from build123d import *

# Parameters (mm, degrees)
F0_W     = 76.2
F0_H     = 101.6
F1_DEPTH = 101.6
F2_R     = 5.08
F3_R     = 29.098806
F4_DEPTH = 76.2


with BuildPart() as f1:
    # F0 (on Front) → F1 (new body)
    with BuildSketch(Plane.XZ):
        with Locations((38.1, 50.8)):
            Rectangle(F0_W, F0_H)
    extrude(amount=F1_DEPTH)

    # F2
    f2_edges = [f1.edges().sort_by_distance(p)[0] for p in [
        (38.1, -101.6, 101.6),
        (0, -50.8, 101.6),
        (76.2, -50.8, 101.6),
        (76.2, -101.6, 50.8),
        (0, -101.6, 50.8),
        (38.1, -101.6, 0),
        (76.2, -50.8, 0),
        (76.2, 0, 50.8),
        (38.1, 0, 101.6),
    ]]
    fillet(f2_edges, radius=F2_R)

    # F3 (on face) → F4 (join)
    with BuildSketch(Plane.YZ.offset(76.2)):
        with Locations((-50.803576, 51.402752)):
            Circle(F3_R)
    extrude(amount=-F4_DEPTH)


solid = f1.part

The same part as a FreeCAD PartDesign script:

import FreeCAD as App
import Part
import Sketcher
from FreeCAD import Vector
Q = App.Units.Quantity


def edges_at(feature, points):
    """Names of the edges that pass closest to the given points."""
    edges = feature.Shape.Edges
    near = lambda p: min(range(len(edges)), key=lambda i: edges[i].distToShape(Part.Vertex(*p))[0])
    return sorted({f"Edge{near(p) + 1}" for p in points})


def add_polygon(sketch, points):
    """Adds a closed chain of lines whose ends are joined by coincident constraints."""
    first, n = sketch.GeometryCount, len(points)
    for a, b in zip(points, points[1:] + points[:1]):
        sketch.addGeometry(Part.LineSegment(App.Vector(*a, 0), App.Vector(*b, 0)), False)
    for i in range(n):
        sketch.addConstraint(Sketcher.Constraint("Coincident", first + i, 2, first + (i + 1) % n, 1))

doc = App.newDocument("Part")
body = doc.addObject("PartDesign::Body", "Body")

# Sketch on XZ plane
sketch1 = body.newObject("Sketcher::SketchObject", "Sketch")
sketch1.AttachmentSupport = (doc.getObject("XZ_Plane"), [""])
sketch1.MapMode = "FlatFace"
add_polygon(sketch1, [(0, 101.6), (0, 0), (76.2, 0), (76.2, 101.6)])  # lines 0-3
sketch1.addConstraint([
    Sketcher.Constraint("Vertical", 0),
    Sketcher.Constraint("Horizontal", 1),
    Sketcher.Constraint("Vertical", 2),
    Sketcher.Constraint("Horizontal", 3),
    Sketcher.Constraint("Coincident", 0, 2, -1, 1),
    Sketcher.Constraint("DistanceX", 1, 1, 1, 2, Q("3 in")),
    Sketcher.Constraint("DistanceY", 0, 2, 0, 1, Q("4 in")),
])
pad1 = body.newObject("PartDesign::Pad", "Pad")
pad1.Profile = sketch1
pad1.Length = Q("4 in")
doc.recompute()

fillet = body.newObject("PartDesign::Fillet", "Fillet")
fillet.Base = (pad1, edges_at(pad1, [
    (38.1, -101.6, 101.6),
    (0, -50.8, 101.6),
    (76.2, -50.8, 101.6),
    (76.2, -101.6, 50.8),
    (0, -101.6, 50.8),
    (38.1, -101.6, 0),
    (76.2, -50.8, 0),
    (76.2, 0, 50.8),
    (38.1, 0, 101.6),
]))
fillet.Radius = Q("0.2 in")

# Sketch on YZ plane
sketch2 = body.newObject("Sketcher::SketchObject", "Sketch001")
sketch2.AttachmentSupport = (doc.getObject("YZ_Plane"), [""])
sketch2.MapMode = "FlatFace"
sketch2.AttachmentOffset = App.Placement(Vector(0, 0, 3 * 25.4), App.Rotation())
sketch2.addGeometry(Part.Circle(Vector(-50.803576, 51.402752, 0), Vector(0, 0, 1), 29.098806), False)
sketch2.addConstraint([
    Sketcher.Constraint("Diameter", 0, 58.197612),
    Sketcher.Constraint("DistanceX", 0, 3, -1, 1, 50.803576),
    Sketcher.Constraint("DistanceY", -1, 1, 0, 3, 51.402752),
])
pad2 = body.newObject("PartDesign::Pad", "Pad001")
pad2.Profile = sketch2
pad2.Length = Q("3 in")
pad2.Reversed = True

doc.recompute()
